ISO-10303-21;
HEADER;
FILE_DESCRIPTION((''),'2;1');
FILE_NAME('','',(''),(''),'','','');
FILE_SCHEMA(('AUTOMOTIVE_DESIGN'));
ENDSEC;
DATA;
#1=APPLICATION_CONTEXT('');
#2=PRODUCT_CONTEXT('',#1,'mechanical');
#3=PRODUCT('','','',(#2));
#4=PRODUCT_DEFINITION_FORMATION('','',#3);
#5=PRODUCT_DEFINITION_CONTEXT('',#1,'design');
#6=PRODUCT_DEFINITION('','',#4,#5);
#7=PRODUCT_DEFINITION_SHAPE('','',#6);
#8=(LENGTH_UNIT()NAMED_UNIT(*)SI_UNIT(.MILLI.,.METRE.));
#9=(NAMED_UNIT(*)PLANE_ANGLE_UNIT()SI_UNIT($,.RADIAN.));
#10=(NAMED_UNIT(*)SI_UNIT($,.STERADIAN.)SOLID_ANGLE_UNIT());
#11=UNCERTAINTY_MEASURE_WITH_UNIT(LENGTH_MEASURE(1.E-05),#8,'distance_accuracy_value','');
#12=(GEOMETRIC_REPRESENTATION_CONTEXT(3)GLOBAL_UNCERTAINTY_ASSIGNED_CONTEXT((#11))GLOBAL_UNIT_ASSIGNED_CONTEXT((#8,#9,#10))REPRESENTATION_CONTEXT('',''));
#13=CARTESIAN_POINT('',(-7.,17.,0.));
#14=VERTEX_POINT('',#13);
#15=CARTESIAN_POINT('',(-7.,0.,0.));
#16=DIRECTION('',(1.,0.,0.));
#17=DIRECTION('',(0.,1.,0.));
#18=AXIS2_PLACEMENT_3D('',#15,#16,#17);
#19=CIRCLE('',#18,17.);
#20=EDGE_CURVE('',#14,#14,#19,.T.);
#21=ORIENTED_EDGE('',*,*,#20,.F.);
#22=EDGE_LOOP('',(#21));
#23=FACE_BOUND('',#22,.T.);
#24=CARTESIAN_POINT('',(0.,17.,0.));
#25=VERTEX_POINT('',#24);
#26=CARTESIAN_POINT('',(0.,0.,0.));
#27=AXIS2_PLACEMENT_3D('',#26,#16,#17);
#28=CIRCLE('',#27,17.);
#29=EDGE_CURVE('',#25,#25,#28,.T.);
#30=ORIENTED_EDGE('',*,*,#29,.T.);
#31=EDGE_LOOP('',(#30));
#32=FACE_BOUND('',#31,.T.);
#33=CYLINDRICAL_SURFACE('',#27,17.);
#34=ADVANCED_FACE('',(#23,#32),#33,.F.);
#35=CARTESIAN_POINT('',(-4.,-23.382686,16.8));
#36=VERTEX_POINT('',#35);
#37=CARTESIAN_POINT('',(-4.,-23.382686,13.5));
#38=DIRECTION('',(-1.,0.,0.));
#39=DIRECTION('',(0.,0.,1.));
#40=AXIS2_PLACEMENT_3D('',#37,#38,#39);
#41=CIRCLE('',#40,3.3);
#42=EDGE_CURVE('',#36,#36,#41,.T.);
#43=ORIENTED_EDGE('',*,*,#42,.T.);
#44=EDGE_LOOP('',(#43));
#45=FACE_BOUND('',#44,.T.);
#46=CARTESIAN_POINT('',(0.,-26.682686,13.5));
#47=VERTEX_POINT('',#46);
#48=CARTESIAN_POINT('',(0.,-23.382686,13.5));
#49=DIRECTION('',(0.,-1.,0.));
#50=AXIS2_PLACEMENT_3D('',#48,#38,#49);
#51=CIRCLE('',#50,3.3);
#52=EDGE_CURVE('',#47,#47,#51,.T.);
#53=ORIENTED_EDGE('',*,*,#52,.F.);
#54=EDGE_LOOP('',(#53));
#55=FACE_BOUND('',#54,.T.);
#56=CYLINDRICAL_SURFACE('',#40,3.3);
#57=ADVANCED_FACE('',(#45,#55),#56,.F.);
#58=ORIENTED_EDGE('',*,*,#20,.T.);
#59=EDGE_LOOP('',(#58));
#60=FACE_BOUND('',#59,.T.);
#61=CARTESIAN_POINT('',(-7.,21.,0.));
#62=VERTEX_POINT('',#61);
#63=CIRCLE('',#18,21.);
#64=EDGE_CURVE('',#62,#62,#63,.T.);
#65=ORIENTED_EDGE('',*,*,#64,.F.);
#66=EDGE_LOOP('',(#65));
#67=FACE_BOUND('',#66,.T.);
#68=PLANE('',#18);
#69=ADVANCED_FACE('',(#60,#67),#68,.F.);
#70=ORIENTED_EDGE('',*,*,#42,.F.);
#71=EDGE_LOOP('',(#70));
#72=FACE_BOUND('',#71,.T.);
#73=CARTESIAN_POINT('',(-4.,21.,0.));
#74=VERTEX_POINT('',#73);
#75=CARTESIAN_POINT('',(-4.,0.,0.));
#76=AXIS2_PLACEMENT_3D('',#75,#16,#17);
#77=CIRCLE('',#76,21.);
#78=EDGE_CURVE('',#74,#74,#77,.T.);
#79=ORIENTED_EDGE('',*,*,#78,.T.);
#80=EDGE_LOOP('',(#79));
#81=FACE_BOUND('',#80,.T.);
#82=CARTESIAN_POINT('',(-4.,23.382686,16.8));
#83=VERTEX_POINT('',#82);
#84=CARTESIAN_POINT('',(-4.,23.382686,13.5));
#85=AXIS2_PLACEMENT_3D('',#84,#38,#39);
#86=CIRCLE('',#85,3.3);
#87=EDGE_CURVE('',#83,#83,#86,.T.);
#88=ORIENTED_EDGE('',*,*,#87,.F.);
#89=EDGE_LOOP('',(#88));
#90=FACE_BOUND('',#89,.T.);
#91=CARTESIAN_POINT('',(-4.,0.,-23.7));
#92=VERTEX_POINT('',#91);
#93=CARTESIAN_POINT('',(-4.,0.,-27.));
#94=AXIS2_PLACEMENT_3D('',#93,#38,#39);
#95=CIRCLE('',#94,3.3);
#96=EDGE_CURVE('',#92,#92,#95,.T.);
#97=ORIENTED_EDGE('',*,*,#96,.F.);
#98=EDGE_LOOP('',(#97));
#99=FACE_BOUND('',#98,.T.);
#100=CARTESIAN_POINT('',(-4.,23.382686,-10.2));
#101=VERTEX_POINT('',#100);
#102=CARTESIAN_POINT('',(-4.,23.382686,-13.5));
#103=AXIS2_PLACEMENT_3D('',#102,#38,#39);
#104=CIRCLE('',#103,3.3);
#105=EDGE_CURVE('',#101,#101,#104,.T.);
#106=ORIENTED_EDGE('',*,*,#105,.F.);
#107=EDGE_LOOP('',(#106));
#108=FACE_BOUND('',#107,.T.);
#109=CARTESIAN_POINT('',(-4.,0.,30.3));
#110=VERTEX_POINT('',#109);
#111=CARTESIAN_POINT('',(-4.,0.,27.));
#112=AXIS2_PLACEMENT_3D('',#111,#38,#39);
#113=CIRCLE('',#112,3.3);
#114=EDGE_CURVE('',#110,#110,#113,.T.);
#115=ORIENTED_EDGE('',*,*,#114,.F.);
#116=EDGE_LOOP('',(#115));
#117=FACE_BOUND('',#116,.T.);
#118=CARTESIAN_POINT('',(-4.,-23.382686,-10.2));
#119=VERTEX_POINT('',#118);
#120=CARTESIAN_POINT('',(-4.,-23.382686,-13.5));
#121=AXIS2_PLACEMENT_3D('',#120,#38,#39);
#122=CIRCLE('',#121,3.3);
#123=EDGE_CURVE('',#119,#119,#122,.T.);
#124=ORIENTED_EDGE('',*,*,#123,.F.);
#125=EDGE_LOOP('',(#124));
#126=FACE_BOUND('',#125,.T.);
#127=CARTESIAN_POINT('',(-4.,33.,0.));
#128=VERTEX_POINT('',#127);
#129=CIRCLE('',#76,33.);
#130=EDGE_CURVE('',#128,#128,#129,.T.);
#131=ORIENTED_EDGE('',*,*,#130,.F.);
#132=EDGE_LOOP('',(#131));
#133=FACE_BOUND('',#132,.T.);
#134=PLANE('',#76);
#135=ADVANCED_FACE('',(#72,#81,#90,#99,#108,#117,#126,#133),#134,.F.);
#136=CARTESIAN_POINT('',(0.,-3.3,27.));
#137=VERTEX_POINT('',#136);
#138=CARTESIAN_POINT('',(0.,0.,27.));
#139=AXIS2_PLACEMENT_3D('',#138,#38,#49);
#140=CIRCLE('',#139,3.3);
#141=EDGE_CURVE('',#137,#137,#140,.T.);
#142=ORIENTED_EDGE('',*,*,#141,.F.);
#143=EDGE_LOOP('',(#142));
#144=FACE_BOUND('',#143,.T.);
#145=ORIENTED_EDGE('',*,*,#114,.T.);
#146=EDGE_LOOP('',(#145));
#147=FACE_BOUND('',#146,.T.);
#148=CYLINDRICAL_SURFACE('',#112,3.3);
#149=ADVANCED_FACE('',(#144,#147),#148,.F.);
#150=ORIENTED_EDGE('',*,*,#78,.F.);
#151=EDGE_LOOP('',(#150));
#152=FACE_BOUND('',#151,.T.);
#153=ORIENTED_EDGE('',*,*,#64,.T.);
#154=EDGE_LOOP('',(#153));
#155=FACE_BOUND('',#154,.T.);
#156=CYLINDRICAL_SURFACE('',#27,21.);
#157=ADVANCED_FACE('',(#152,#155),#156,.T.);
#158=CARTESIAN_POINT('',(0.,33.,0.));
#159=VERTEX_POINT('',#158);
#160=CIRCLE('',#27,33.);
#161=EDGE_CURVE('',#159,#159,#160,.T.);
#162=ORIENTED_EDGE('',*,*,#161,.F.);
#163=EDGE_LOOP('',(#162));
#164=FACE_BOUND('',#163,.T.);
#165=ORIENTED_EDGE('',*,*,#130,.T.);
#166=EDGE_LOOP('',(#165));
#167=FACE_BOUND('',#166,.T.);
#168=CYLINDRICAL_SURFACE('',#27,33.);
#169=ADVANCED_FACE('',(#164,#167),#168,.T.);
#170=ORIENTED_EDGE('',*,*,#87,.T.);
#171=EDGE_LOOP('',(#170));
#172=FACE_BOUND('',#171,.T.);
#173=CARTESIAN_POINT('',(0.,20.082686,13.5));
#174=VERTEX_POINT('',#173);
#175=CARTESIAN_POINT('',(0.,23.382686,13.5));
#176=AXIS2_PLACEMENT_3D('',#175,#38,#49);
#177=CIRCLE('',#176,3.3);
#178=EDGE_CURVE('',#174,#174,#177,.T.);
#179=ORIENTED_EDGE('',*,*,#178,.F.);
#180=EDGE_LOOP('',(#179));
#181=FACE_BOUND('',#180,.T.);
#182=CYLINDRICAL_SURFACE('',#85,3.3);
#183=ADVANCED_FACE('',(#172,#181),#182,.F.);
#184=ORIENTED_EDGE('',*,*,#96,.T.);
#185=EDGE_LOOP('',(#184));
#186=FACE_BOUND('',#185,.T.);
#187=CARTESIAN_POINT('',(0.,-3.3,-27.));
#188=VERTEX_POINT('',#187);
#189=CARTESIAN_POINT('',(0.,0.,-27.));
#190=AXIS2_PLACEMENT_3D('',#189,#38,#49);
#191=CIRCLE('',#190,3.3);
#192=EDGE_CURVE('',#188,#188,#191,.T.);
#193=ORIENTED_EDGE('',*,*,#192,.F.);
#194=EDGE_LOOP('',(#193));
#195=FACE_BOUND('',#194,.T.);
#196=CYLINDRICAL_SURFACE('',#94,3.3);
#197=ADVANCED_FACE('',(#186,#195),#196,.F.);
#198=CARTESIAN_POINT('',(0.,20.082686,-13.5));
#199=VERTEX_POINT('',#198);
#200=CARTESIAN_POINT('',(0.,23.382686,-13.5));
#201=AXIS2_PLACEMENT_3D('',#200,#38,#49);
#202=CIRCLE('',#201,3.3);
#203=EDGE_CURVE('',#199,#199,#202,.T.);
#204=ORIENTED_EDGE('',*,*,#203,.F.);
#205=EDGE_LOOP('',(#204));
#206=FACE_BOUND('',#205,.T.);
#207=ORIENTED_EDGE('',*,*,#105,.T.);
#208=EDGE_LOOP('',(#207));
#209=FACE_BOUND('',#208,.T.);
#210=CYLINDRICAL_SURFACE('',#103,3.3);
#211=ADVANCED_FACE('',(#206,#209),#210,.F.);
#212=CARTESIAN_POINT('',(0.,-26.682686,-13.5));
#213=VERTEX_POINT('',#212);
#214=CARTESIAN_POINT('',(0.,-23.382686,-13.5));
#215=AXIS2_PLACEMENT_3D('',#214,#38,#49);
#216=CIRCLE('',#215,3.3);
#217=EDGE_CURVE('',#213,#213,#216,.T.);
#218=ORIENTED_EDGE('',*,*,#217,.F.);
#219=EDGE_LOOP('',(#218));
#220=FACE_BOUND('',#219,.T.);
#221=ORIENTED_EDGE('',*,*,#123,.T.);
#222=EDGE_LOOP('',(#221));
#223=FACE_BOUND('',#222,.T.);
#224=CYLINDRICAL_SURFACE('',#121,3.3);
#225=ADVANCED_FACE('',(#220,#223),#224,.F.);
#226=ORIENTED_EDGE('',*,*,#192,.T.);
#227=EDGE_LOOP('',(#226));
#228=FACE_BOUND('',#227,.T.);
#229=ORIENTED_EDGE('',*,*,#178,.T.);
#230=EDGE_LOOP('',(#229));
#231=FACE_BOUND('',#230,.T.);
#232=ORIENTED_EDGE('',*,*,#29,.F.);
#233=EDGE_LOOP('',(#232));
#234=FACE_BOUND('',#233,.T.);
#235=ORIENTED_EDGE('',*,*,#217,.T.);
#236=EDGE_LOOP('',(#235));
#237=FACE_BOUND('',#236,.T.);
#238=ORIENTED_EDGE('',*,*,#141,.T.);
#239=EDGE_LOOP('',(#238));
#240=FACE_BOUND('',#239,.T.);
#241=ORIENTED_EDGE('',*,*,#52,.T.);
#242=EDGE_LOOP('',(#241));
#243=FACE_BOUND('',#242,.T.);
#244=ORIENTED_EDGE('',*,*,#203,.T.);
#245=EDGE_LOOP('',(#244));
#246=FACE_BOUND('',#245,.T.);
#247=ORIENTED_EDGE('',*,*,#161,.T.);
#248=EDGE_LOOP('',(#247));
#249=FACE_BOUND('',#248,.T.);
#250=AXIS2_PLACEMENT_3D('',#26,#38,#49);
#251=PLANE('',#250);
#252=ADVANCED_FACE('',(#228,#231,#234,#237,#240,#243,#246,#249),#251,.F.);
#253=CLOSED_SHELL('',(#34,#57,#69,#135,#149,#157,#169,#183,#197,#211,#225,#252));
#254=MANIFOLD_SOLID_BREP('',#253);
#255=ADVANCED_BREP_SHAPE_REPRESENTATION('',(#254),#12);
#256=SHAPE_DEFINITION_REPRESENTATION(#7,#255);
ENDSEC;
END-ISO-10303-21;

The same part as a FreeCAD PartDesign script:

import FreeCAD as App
import Part
import Sketcher
from FreeCAD import Vector
Q = App.Units.Quantity


def add_polygon(sketch, points):
    """Adds a closed chain of lines whose ends are joined by coincident constraints."""
    first, n = sketch.GeometryCount, len(points)
    for a, b in zip(points, points[1:] + points[:1]):
        sketch.addGeometry(Part.LineSegment(App.Vector(*a, 0), App.Vector(*b, 0)), False)
    for i in range(n):
        sketch.addConstraint(Sketcher.Constraint("Coincident", first + i, 2, first + (i + 1) % n, 1))

doc = App.newDocument("Part")
body = doc.addObject("PartDesign::Body", "Body")

# Sketch on XY plane
sketch1 = body.newObject("Sketcher::SketchObject", "Sketch")
sketch1.AttachmentSupport = (doc.getObject("XY_Plane"), [""])
sketch1.MapMode = "FlatFace"
add_polygon(sketch1, [(-7, 21), (-7, 17), (0, 17), (0, 33), (-4, 33), (-4, 21)])  # lines 0-5
sketch1.addConstraint([
    Sketcher.Constraint("Vertical", 0),
    Sketcher.Constraint("Horizontal", 1),
    Sketcher.Constraint("Vertical", 2),
    Sketcher.Constraint("Horizontal", 3),
    Sketcher.Constraint("Vertical", 4),
    Sketcher.Constraint("Horizontal", 5),
    Sketcher.Constraint("PointOnObject", 1, 2, -2),
    Sketcher.Constraint("Equal", 3, 0),
    Sketcher.Constraint("DistanceX", 1, 1, 1, 2, Q("7 mm")),
    Sketcher.Constraint("DistanceX", 3, 2, 3, 1, Q("4 mm")),
    Sketcher.Constraint("DistanceY", 2, 1, 2, 2, Q("16 mm")),
    Sketcher.Constraint("DistanceY", -1, 1, 0, 2, Q("17 mm")),
])
revolution = body.newObject("PartDesign::Revolution", "Revolution")
revolution.Profile = sketch1
revolution.ReferenceAxis = (sketch1, ["H_Axis"])
revolution.Angle = 360

# Sketch on YZ plane
sketch2 = body.newObject("Sketcher::SketchObject", "Sketch001")
sketch2.AttachmentSupport = (doc.getObject("YZ_Plane"), [""])
sketch2.MapMode = "FlatFace"
sketch2.AttachmentOffset = App.Placement(Vector(0, 0, -4), App.Rotation())
sketch2.addGeometry(Part.Circle(Vector(0, -27, 0), Vector(0, 0, 1), 3.3), False)
sketch2.addConstraint([
    Sketcher.Constraint("PointOnObject", 0, 3, -2),
    Sketcher.Constraint("Diameter", 0, Q("6.6 mm")),
    Sketcher.Constraint("DistanceY", 0, 3, -1, 1, Q("27 mm")),
])
doc.recompute()
hole = body.newObject("PartDesign::Hole", "Hole")
hole.Profile = sketch2
hole.ThreadType = "None"
hole.Diameter = 6.6
hole.DepthType = "Dimension"
hole.Depth = 4
hole.DrillPoint = "Flat"
hole.Reversed = True
doc.recompute()

polarpattern = body.newObject("PartDesign::PolarPattern", "PolarPattern")
polarpattern.Originals = [hole]
polarpattern.Axis = (doc.getObject("X_Axis"), [""])
polarpattern.Angle = 360
polarpattern.Occurrences = 6
body.Tip = polarpattern

doc.recompute()
